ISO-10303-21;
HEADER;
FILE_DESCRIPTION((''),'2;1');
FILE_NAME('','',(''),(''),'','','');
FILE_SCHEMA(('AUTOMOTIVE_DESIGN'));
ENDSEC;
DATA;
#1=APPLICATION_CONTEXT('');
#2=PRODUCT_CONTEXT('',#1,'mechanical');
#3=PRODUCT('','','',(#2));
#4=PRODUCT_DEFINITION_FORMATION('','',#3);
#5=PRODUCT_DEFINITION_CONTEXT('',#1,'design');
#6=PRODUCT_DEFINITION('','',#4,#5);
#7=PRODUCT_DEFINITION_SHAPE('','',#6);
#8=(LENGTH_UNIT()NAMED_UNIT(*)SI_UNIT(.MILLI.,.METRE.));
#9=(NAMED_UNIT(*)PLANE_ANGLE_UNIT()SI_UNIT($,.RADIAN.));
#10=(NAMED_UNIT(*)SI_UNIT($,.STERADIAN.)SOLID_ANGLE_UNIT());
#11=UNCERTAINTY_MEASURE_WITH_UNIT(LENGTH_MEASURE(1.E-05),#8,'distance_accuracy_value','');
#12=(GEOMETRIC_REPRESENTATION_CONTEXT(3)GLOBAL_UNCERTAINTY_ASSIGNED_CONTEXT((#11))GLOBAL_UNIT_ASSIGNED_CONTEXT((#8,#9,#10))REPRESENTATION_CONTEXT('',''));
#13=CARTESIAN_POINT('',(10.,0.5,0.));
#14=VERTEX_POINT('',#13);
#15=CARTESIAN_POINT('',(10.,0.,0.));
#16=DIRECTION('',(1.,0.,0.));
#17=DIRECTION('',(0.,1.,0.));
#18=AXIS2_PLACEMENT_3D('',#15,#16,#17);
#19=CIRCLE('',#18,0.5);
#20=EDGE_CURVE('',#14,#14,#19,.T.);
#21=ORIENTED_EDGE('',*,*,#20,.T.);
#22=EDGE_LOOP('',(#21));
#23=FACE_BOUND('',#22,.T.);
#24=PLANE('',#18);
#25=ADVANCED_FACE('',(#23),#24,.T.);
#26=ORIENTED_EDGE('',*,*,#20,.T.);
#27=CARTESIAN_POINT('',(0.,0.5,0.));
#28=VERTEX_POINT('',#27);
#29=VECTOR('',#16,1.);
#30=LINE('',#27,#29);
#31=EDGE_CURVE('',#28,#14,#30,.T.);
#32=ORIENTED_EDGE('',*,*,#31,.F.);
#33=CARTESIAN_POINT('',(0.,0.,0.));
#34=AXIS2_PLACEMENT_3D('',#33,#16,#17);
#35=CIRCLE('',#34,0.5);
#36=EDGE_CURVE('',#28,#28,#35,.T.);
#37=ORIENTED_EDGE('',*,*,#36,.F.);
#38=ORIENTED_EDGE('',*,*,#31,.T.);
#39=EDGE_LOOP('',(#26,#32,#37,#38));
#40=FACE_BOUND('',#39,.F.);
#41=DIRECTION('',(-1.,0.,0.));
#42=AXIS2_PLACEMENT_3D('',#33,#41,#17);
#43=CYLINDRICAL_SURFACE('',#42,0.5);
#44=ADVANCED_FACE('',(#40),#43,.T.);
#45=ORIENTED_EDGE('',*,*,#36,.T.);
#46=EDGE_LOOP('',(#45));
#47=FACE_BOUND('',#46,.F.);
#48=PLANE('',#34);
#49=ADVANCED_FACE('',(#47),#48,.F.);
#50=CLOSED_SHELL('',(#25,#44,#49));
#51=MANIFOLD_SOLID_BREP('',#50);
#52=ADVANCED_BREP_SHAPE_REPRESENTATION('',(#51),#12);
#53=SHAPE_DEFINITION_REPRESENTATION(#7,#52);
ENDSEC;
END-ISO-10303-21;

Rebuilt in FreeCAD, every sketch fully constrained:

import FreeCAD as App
import Part
import Sketcher
Q = App.Units.Quantity

doc = App.newDocument("Part")
body = doc.addObject("PartDesign::Body", "Body")

# Sketch on YZ plane
sketch1 = body.newObject("Sketcher::SketchObject", "Sketch")
sketch1.AttachmentSupport = (doc.getObject("YZ_Plane"), [""])
sketch1.MapMode = "FlatFace"
sketch1.addGeometry(Part.Circle(App.Vector(0, 0, 0), App.Vector(0, 0, 1), 0.5), False)
sketch1.addConstraint([
    Sketcher.Constraint("Coincident", 0, 3, -1, 1),
    Sketcher.Constraint("Diameter", 0, Q("1 mm")),
])
pad1 = body.newObject("PartDesign::Pad", "Pad")
pad1.Profile = sketch1
pad1.Length = 10

doc.recompute()
